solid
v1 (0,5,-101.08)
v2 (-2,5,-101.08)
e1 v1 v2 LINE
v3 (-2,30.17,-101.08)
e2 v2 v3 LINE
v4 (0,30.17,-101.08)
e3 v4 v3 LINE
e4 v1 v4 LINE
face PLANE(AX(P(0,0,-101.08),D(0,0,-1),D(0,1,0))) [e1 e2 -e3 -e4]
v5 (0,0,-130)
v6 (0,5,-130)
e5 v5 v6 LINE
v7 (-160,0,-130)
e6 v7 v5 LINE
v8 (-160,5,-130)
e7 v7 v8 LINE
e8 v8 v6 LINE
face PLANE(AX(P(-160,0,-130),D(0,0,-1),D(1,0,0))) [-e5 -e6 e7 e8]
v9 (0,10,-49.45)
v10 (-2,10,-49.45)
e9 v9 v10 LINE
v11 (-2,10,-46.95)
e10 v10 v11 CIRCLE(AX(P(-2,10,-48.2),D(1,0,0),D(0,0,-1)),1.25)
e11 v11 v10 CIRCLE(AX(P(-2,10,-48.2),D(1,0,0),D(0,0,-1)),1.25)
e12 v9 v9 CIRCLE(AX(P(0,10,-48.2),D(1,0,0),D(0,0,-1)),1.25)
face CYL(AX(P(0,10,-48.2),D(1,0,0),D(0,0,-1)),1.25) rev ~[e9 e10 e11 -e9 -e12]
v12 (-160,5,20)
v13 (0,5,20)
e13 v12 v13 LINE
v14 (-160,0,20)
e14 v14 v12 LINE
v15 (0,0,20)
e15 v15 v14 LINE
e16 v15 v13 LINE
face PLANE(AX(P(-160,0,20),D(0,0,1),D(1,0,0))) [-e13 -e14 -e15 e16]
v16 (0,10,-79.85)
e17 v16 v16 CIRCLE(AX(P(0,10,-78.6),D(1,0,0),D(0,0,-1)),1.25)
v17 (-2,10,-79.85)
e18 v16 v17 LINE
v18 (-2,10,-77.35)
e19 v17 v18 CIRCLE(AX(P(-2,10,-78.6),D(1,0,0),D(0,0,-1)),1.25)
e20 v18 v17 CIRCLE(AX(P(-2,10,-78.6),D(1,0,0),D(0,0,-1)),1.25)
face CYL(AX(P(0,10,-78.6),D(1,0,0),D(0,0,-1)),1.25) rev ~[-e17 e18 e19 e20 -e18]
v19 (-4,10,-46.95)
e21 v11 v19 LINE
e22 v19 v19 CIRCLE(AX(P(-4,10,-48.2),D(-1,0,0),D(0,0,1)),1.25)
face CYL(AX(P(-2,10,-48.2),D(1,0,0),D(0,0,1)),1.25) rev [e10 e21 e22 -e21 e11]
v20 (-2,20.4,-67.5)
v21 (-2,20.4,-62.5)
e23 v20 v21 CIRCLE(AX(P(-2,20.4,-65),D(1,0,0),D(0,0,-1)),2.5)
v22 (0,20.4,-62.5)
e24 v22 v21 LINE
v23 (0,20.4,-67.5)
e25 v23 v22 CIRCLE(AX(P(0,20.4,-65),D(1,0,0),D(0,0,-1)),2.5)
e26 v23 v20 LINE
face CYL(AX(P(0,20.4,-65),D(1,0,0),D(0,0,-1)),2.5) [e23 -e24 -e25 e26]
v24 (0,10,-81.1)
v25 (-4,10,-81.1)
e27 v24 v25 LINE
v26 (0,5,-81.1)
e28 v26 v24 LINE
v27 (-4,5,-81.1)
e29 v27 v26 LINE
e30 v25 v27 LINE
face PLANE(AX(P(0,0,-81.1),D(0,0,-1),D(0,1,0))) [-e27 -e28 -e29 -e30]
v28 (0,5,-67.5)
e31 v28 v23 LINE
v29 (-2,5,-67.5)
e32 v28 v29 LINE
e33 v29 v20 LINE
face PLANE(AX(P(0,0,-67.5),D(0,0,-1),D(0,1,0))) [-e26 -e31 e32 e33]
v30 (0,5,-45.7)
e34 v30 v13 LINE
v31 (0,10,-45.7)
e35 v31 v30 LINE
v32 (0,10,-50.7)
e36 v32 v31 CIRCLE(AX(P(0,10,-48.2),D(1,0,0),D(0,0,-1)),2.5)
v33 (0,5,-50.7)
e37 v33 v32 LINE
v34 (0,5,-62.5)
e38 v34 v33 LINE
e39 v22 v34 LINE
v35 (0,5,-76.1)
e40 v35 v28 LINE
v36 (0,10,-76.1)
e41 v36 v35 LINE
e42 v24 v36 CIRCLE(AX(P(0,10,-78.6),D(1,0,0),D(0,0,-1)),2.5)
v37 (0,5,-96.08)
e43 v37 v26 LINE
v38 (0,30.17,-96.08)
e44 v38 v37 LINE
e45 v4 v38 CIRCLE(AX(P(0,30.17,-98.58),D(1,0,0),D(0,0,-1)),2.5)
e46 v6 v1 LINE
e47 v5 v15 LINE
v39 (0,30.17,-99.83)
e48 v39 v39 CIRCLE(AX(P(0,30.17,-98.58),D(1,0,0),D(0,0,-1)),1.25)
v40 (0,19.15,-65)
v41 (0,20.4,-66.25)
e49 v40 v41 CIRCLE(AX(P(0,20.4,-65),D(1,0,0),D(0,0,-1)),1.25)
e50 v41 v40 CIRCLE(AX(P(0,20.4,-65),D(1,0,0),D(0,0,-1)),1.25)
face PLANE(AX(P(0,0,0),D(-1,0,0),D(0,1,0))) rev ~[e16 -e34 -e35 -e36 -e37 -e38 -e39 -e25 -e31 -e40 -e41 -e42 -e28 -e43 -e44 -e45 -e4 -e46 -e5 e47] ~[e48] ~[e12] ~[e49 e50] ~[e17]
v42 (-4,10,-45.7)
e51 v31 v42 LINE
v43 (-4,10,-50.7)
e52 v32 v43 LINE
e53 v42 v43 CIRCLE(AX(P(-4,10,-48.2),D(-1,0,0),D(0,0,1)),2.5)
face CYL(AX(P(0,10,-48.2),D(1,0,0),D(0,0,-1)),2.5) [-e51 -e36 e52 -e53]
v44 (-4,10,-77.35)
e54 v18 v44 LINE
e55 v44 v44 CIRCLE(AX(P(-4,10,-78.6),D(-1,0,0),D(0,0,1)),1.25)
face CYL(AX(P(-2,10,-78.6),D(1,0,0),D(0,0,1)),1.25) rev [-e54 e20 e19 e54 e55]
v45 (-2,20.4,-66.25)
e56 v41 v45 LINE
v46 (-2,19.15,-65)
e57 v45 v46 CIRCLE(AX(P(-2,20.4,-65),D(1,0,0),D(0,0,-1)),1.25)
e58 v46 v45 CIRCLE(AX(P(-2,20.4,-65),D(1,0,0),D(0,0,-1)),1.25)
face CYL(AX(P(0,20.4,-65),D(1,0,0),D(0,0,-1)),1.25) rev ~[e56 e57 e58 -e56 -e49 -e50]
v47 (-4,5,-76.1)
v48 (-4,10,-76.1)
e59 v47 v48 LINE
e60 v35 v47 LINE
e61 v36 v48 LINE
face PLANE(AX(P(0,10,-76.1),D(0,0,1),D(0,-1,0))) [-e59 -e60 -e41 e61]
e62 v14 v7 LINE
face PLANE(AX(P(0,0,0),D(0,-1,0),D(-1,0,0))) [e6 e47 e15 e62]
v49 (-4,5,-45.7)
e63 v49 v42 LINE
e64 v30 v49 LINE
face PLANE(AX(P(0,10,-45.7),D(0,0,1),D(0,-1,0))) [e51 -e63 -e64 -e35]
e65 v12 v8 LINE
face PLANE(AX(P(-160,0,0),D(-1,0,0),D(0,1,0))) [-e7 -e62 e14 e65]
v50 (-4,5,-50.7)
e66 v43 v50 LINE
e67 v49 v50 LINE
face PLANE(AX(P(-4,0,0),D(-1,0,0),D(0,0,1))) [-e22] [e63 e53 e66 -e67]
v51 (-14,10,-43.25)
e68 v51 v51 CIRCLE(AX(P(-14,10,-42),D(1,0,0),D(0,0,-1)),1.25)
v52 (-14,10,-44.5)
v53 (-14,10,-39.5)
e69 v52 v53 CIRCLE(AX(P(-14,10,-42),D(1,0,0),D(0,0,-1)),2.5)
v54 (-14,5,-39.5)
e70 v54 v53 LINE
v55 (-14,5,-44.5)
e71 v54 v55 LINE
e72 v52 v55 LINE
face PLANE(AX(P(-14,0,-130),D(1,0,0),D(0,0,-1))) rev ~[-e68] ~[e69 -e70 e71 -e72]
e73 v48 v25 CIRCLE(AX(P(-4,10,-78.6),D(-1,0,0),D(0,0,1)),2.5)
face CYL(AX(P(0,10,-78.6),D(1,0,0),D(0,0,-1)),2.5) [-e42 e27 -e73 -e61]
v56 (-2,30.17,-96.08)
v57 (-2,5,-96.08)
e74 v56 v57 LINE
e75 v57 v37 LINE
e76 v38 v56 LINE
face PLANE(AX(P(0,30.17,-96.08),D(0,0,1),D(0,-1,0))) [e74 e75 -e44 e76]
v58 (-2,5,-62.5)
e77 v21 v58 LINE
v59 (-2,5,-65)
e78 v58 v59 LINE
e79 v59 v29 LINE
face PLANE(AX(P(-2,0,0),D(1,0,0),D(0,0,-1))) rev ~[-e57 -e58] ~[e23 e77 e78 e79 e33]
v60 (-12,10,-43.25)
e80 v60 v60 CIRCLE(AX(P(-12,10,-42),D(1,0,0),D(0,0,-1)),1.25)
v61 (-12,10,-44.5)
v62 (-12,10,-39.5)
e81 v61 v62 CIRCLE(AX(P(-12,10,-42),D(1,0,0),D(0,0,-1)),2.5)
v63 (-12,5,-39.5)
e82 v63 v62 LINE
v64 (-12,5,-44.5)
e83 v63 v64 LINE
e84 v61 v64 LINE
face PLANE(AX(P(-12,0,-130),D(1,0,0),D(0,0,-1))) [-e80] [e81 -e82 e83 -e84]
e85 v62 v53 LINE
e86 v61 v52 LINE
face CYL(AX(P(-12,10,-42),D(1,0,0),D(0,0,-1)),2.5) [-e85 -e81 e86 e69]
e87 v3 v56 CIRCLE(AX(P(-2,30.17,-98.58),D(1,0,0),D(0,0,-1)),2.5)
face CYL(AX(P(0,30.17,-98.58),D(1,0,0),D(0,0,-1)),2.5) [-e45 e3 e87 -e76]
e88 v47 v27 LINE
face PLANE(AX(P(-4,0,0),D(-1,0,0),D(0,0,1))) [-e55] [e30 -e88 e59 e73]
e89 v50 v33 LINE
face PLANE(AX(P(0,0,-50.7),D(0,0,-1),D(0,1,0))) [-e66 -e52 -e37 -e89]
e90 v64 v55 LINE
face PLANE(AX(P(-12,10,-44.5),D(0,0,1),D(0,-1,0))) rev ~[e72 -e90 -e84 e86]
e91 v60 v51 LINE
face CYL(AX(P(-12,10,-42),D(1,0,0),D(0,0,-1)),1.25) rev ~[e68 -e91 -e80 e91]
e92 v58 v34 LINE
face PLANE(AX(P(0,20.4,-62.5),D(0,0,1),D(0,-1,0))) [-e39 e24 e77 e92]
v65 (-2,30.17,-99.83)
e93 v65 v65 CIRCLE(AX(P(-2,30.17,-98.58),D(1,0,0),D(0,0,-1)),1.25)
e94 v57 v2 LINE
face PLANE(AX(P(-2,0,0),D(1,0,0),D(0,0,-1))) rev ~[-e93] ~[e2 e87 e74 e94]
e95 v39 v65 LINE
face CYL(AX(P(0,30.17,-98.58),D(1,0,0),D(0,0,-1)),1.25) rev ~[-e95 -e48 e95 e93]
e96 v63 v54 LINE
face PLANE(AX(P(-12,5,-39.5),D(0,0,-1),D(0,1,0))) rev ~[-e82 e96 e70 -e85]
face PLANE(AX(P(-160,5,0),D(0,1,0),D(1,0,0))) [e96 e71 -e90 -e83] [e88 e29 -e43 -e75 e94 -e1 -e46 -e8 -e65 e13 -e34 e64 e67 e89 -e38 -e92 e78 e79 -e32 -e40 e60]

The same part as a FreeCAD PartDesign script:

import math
import FreeCAD as App
import Part
import Sketcher
from FreeCAD import Vector
Q = App.Units.Quantity


def add_polygon(sketch, points):
    """Adds a closed chain of lines whose ends are joined by coincident constraints."""
    first, n = sketch.GeometryCount, len(points)
    for a, b in zip(points, points[1:] + points[:1]):
        sketch.addGeometry(Part.LineSegment(App.Vector(*a, 0), App.Vector(*b, 0)), False)
    for i in range(n):
        sketch.addConstraint(Sketcher.Constraint("Coincident", first + i, 2, first + (i + 1) % n, 1))

doc = App.newDocument("Part")
body = doc.addObject("PartDesign::Body", "Body")

# Sketch on XZ plane
sketch1 = body.newObject("Sketcher::SketchObject", "Sketch")
sketch1.AttachmentSupport = (doc.getObject("XZ_Plane"), [""])
sketch1.MapMode = "FlatFace"
add_polygon(sketch1, [(-160, 0), (0, 0), (0, -130), (-160, -130)])  # lines 0-3
sketch1.addConstraint([
    Sketcher.Constraint("Horizontal", 0),
    Sketcher.Constraint("Vertical", 1),
    Sketcher.Constraint("Horizontal", 2),
    Sketcher.Constraint("Vertical", 3),
    Sketcher.Constraint("Coincident", 0, 2, -1, 1),
    Sketcher.Constraint("DistanceX", 0, 1, 0, 2, Q("160 mm")),
    Sketcher.Constraint("DistanceY", 1, 2, 1, 1, Q("130 mm")),
])
pad1 = body.newObject("PartDesign::Pad", "Pad")
pad1.Profile = sketch1
pad1.Length = 5
pad1.Reversed = True

# Sketch on YZ plane
sketch2 = body.newObject("Sketcher::SketchObject", "Sketch001")
sketch2.AttachmentSupport = (doc.getObject("YZ_Plane"), [""])
sketch2.MapMode = "FlatFace"
sketch2.addGeometry([
    Part.LineSegment(Vector(0, -65, 0), Vector(0, -67.5, 0)),  # 0
    Part.LineSegment(Vector(0, -67.5, 0), Vector(20.4, -67.5, 0)),  # 1
    Part.ArcOfCircle(Part.Circle(Vector(20.4, -65, 0), Vector(0, 0, 1), 2.5), math.radians(-90), math.radians(90)),  # 2
    Part.LineSegment(Vector(20.4, -62.5, 0), Vector(0, -62.5, 0)),  # 3
    Part.LineSegment(Vector(0, -62.5, 0), Vector(0, -65, 0)),  # 4
    Part.Circle(Vector(20.4, -65, 0), Vector(0, 0, 1), 1.2),  # 5
], False)
sketch2.addConstraint([
    Sketcher.Constraint("Coincident", 0, 2, 1, 1),
    Sketcher.Constraint("Tangent", 1, 2, 2, 1),
    Sketcher.Constraint("Tangent", 2, 2, 3, 1),
    Sketcher.Constraint("Coincident", 3, 2, 4, 1),
    Sketcher.Constraint("Coincident", 4, 2, 0, 1),
    Sketcher.Constraint("Vertical", 0),
    Sketcher.Constraint("Horizontal", 1),
    Sketcher.Constraint("Horizontal", 3),
    Sketcher.Constraint("Vertical", 4),
    Sketcher.Constraint("Coincident", 5, 3, 2, 3),
    Sketcher.Constraint("PointOnObject", 0, 2, -2),
    Sketcher.Constraint("Horizontal", 5, 3, 4, 2),
    Sketcher.Constraint("Diameter", 5, Q("2.5 mm")),
    Sketcher.Constraint("Radius", 2, Q("2.5 mm")),
    Sketcher.Constraint("DistanceX", 1, 1, 1, 2, Q("20.4 mm")),
    Sketcher.Constraint("DistanceY", 2, 3, -1, 1, Q("65 mm")),
])
pad2 = body.newObject("PartDesign::Pad", "Pad001")
pad2.Profile = sketch2
pad2.Length = 2
pad2.Reversed = True

# Sketch on YZ plane
sketch3 = body.newObject("Sketcher::SketchObject", "Sketch002")
sketch3.AttachmentSupport = (doc.getObject("YZ_Plane"), [""])
sketch3.MapMode = "FlatFace"
sketch3.addGeometry([
    Part.ArcOfCircle(Part.Circle(Vector(10, -48.2, 0), Vector(0, 0, 1), 2.5), math.radians(-90), math.radians(90)),  # 0
    Part.LineSegment(Vector(10, -45.7, 0), Vector(0, -45.7, 0)),  # 1
    Part.LineSegment(Vector(0, -45.7, 0), Vector(0, -50.7, 0)),  # 2
    Part.LineSegment(Vector(0, -50.7, 0), Vector(10, -50.7, 0)),  # 3
    Part.Circle(Vector(10, -48.2, 0), Vector(0, 0, 1), 1.2),  # 4
    Part.LineSegment(Vector(30.2, -96.1, 0), Vector(0, -96.1, 0)),  # 5
    Part.LineSegment(Vector(0, -96.1, 0), Vector(0, -101.1, 0)),  # 6
    Part.LineSegment(Vector(0, -101.1, 0), Vector(30.2, -101.1, 0)),  # 7
    Part.ArcOfCircle(Part.Circle(Vector(30.2, -98.6, 0), Vector(0, 0, 1), 2.5), math.radians(-90), math.radians(90)),  # 8
    Part.Circle(Vector(30.2, -98.6, 0), Vector(0, 0, 1), 1.2),  # 9
    Part.LineSegment(Vector(10, -76.1, 0), Vector(0, -76.1, 0)),  # 10
    Part.LineSegment(Vector(0, -76.1, 0), Vector(0, -81.1, 0)),  # 11
    Part.LineSegment(Vector(0, -81.1, 0), Vector(10, -81.1, 0)),  # 12
    Part.ArcOfCircle(Part.Circle(Vector(10, -78.6, 0), Vector(0, 0, 1), 2.5), math.radians(-90), math.radians(90)),  # 13
    Part.Circle(Vector(10, -78.6, 0), Vector(0, 0, 1), 1.2),  # 14
    Part.LineSegment(Vector(0, -39.5, 0), Vector(0, -44.5, 0)),  # 15
    Part.LineSegment(Vector(0, -44.5, 0), Vector(10, -44.5, 0)),  # 16
    Part.ArcOfCircle(Part.Circle(Vector(10, -42, 0), Vector(0, 0, 1), 2.5), math.radians(-90), math.radians(90)),  # 17
    Part.LineSegment(Vector(10, -39.5, 0), Vector(0, -39.5, 0)),  # 18
    Part.Circle(Vector(10, -42, 0), Vector(0, 0, 1), 1.2),  # 19
], False)
sketch3.addConstraint([
    Sketcher.Constraint("Tangent", 0, 2, 1, 1),
    Sketcher.Constraint("Coincident", 1, 2, 2, 1),
    Sketcher.Constraint("Coincident", 2, 2, 3, 1),
    Sketcher.Constraint("Tangent", 3, 2, 0, 1),
    Sketcher.Constraint("Coincident", 5, 2, 6, 1),
    Sketcher.Constraint("Coincident", 6, 2, 7, 1),
    Sketcher.Constraint("Tangent", 7, 2, 8, 1),
    Sketcher.Constraint("Tangent", 8, 2, 5, 1),
    Sketcher.Constraint("Coincident", 10, 2, 11, 1),
    Sketcher.Constraint("Coincident", 11, 2, 12, 1),
    Sketcher.Constraint("Tangent", 12, 2, 13, 1),
    Sketcher.Constraint("Tangent", 13, 2, 10, 1),
    Sketcher.Constraint("Coincident", 15, 2, 16, 1),
    Sketcher.Constraint("Tangent", 16, 2, 17, 1),
    Sketcher.Constraint("Tangent", 17, 2, 18, 1),
    Sketcher.Constraint("Coincident", 18, 2, 15, 1),
    Sketcher.Constraint("Horizontal", 1),
    Sketcher.Constraint("Vertical", 2),
    Sketcher.Constraint("Horizontal", 3),
    Sketcher.Constraint("Horizontal", 5),
    Sketcher.Constraint("Vertical", 6),
    Sketcher.Constraint("Horizontal", 7),
    Sketcher.Constraint("Horizontal", 10),
    Sketcher.Constraint("Vertical", 11),
    Sketcher.Constraint("Horizontal", 12),
    Sketcher.Constraint("Vertical", 15),
    Sketcher.Constraint("Horizontal", 16),
    Sketcher.Constraint("Horizontal", 18),
    Sketcher.Constraint("Coincident", 4, 3, 0, 3),
    Sketcher.Constraint("Coincident", 9, 3, 8, 3),
    Sketcher.Constraint("Coincident", 14, 3, 13, 3),
    Sketcher.Constraint("Coincident", 19, 3, 17, 3),
    Sketcher.Constraint("Equal", 0, 8),
    Sketcher.Constraint("Equal", 4, 9),
    Sketcher.Constraint("Equal", 8, 13),
    Sketcher.Constraint("Equal", 9, 14),
    Sketcher.Constraint("Equal", 13, 17),
    Sketcher.Constraint("Equal", 14, 19),
    Sketcher.Constraint("PointOnObject", 1, 2, -2),
    Sketcher.Constraint("PointOnObject", 5, 2, -2),
    Sketcher.Constraint("PointOnObject", 10, 2, -2),
    Sketcher.Constraint("PointOnObject", 15, 2, -2),
    Sketcher.Constraint("Vertical", 4, 3, 13, 3),
    Sketcher.Constraint("Vertical", 14, 3, 17, 3),
    Sketcher.Constraint("Diameter", 4, Q("2.5 mm")),
    Sketcher.Constraint("Radius", 0, Q("2.5 mm")),
    Sketcher.Constraint("DistanceX", 1, 2, 1, 1, Q("10 mm")),
    Sketcher.Constraint("DistanceY", 17, 3, -1, 1, Q("42 mm")),
    Sketcher.Constraint("DistanceX", 5, 2, 5, 1, Q("30.17 mm")),
    Sketcher.Constraint("DistanceY", 0, 3, -1, 1, Q("48.2 mm")),
    Sketcher.Constraint("DistanceY", 13, 3, -1, 1, Q("78.6 mm")),
    Sketcher.Constraint("DistanceY", 8, 3, -1, 1, Q("98.58 mm")),
])
pad3 = body.newObject("PartDesign::Pad", "Pad002")
pad3.Profile = sketch3
pad3.Length = 2
pad3.Reversed = True

# Sketch on XY plane
sketch4 = body.newObject("Sketcher::SketchObject", "Sketch003")
sketch4.AttachmentSupport = (doc.getObject("XY_Plane"), [""])
sketch4.MapMode = "FlatFace"
add_polygon(sketch4, [(-160, 0), (0, 0), (0, 5), (-160, 5)])  # lines 0-3
sketch4.addConstraint([
    Sketcher.Constraint("Horizontal", 0),
    Sketcher.Constraint("Vertical", 1),
    Sketcher.Constraint("Horizontal", 2),
    Sketcher.Constraint("Vertical", 3),
    Sketcher.Constraint("Coincident", 0, 2, -1, 1),
    Sketcher.Constraint("DistanceX", 0, 1, 0, 2, Q("160 mm")),
    Sketcher.Constraint("DistanceY", 1, 1, 1, 2, Q("5 mm")),
])
pad4 = body.newObject("PartDesign::Pad", "Pad003")
pad4.Profile = sketch4
pad4.Length = 20

# Sketch on YZ plane
sketch5 = body.newObject("Sketcher::SketchObject", "Sketch004")
sketch5.AttachmentSupport = (doc.getObject("YZ_Plane"), [""])
sketch5.MapMode = "FlatFace"
sketch5.AttachmentOffset = App.Placement(Vector(0, 0, -2), App.Rotation())
sketch5.addGeometry([
    Part.LineSegment(Vector(5, -50.7, 0), Vector(5, -45.7, 0)),  # 0
    Part.LineSegment(Vector(5, -45.7, 0), Vector(10, -45.7, 0)),  # 1
    Part.ArcOfCircle(Part.Circle(Vector(10, -48.2, 0), Vector(0, 0, 1), 2.5), math.radians(-90), math.radians(90)),  # 2
    Part.LineSegment(Vector(10, -50.7, 0), Vector(5, -50.7, 0)),  # 3
    Part.Circle(Vector(10, -48.2, 0), Vector(0, 0, 1), 1.2),  # 4
    Part.LineSegment(Vector(5, -81.1, 0), Vector(5, -76.1, 0)),  # 5
    Part.LineSegment(Vector(5, -76.1, 0), Vector(10, -76.1, 0)),  # 6
    Part.ArcOfCircle(Part.Circle(Vector(10, -78.6, 0), Vector(0, 0, 1), 2.5), math.radians(-90), math.radians(90)),  # 7
    Part.LineSegment(Vector(10, -81.1, 0), Vector(5, -81.1, 0)),  # 8
    Part.Circle(Vector(10, -78.6, 0), Vector(0, 0, 1), 1.2),  # 9
], False)
sketch5.addConstraint([
    Sketcher.Constraint("Coincident", 0, 2, 1, 1),
    Sketcher.Constraint("Tangent", 1, 2, 2, 2),
    Sketcher.Constraint("Tangent", 2, 1, 3, 1),
    Sketcher.Constraint("Coincident", 3, 2, 0, 1),
    Sketcher.Constraint("Coincident", 5, 2, 6, 1),
    Sketcher.Constraint("Tangent", 6, 2, 7, 2),
    Sketcher.Constraint("Tangent", 7, 1, 8, 1),
    Sketcher.Constraint("Coincident", 8, 2, 5, 1),
    Sketcher.Constraint("Vertical", 0),
    Sketcher.Constraint("Horizontal", 1),
    Sketcher.Constraint("Horizontal", 3),
    Sketcher.Constraint("Vertical", 5),
    Sketcher.Constraint("Horizontal", 6),
    Sketcher.Constraint("Horizontal", 8),
    Sketcher.Constraint("Coincident", 4, 3, 2, 3),
    Sketcher.Constraint("Coincident", 9, 3, 7, 3),
    Sketcher.Constraint("Equal", 2, 7),
    Sketcher.Constraint("Equal", 4, 9),
    Sketcher.Constraint("Vertical", 4, 3, 7, 3),
    Sketcher.Constraint("Vertical", 3, 2, 5, 2),
    Sketcher.Constraint("Equal", 8, 0),
    Sketcher.Constraint("Diameter", 4, Q("2.5 mm")),
    Sketcher.Constraint("Radius", 2, Q("2.5 mm")),
    Sketcher.Constraint("DistanceX", -1, 1, 2, 3, Q("10 mm")),
    Sketcher.Constraint("DistanceY", 2, 3, -1, 1, Q("48.2 mm")),
    Sketcher.Constraint("DistanceY", 7, 3, -1, 1, Q("78.6 mm")),
])
pad5 = body.newObject("PartDesign::Pad", "Pad004")
pad5.Profile = sketch5
pad5.Length = 2
pad5.Reversed = True

# Sketch on YZ plane
sketch6 = body.newObject("Sketcher::SketchObject", "Sketch005")
sketch6.AttachmentSupport = (doc.getObject("YZ_Plane"), [""])
sketch6.MapMode = "FlatFace"
sketch6.AttachmentOffset = App.Placement(Vector(0, 0, -12), App.Rotation())
sketch6.addGeometry([
    Part.LineSegment(Vector(10, -39.5, 0), Vector(5, -39.5, 0)),  # 0
    Part.LineSegment(Vector(5, -39.5, 0), Vector(5, -44.5, 0)),  # 1
    Part.LineSegment(Vector(5, -44.5, 0), Vector(10, -44.5, 0)),  # 2
    Part.ArcOfCircle(Part.Circle(Vector(10, -42, 0), Vector(0, 0, 1), 2.5), math.radians(-90), math.radians(90)),  # 3
    Part.Circle(Vector(10, -42, 0), Vector(0, 0, 1), 1.2),  # 4
], False)
sketch6.addConstraint([
    Sketcher.Constraint("Coincident", 0, 2, 1, 1),
    Sketcher.Constraint("Coincident", 1, 2, 2, 1),
    Sketcher.Constraint("Tangent", 2, 2, 3, 1),
    Sketcher.Constraint("Tangent", 3, 2, 0, 1),
    Sketcher.Constraint("Horizontal", 0),
    Sketcher.Constraint("Vertical", 1),
    Sketcher.Constraint("Horizontal", 2),
    Sketcher.Constraint("Coincident", 4, 3, 3, 3),
    Sketcher.Constraint("Equal", 2, 1),
    Sketcher.Constraint("Diameter", 4, Q("2.5 mm")),
    Sketcher.Constraint("Radius", 3, Q("2.5 mm")),
    Sketcher.Constraint("DistanceX", -1, 1, 3, 3, Q("10 mm")),
    Sketcher.Constraint("DistanceY", 3, 3, -1, 1, Q("42 mm")),
])
pad6 = body.newObject("PartDesign::Pad", "Pad005")
pad6.Profile = sketch6
pad6.Length = 2
pad6.Reversed = True

# Sketch on YZ plane
sketch7 = body.newObject("Sketcher::SketchObject", "Sketch006")
sketch7.AttachmentSupport = (doc.getObject("YZ_Plane"), [""])
sketch7.MapMode = "FlatFace"
sketch7.AttachmentOffset = App.Placement(Vector(0, 0, -12), App.Rotation())
sketch7.addGeometry([
    Part.LineSegment(Vector(10, -39.5, 0), Vector(5, -39.5, 0)),  # 0
    Part.LineSegment(Vector(5, -39.5, 0), Vector(5, -44.5, 0)),  # 1
    Part.LineSegment(Vector(5, -44.5, 0), Vector(10, -44.5, 0)),  # 2
    Part.ArcOfCircle(Part.Circle(Vector(10, -42, 0), Vector(0, 0, 1), 2.5), math.radians(-90), math.radians(90)),  # 3
    Part.Circle(Vector(10, -42, 0), Vector(0, 0, 1), 1.2),  # 4
], False)
sketch7.addConstraint([
    Sketcher.Constraint("Coincident", 0, 2, 1, 1),
    Sketcher.Constraint("Coincident", 1, 2, 2, 1),
    Sketcher.Constraint("Tangent", 2, 2, 3, 1),
    Sketcher.Constraint("Tangent", 3, 2, 0, 1),
    Sketcher.Constraint("Horizontal", 0),
    Sketcher.Constraint("Vertical", 1),
    Sketcher.Constraint("Horizontal", 2),
    Sketcher.Constraint("Coincident", 4, 3, 3, 3),
    Sketcher.Constraint("Equal", 2, 1),
    Sketcher.Constraint("Diameter", 4, Q("2.5 mm")),
    Sketcher.Constraint("Radius", 3, Q("2.5 mm")),
    Sketcher.Constraint("DistanceX", -1, 1, 3, 3, Q("10 mm")),
    Sketcher.Constraint("DistanceY", 3, 3, -1, 1, Q("42 mm")),
])
pocket1 = body.newObject("PartDesign::Pocket", "Pocket")
pocket1.Profile = sketch7
pocket1.Length = 20
pocket1.Reversed = True

doc.recompute()
